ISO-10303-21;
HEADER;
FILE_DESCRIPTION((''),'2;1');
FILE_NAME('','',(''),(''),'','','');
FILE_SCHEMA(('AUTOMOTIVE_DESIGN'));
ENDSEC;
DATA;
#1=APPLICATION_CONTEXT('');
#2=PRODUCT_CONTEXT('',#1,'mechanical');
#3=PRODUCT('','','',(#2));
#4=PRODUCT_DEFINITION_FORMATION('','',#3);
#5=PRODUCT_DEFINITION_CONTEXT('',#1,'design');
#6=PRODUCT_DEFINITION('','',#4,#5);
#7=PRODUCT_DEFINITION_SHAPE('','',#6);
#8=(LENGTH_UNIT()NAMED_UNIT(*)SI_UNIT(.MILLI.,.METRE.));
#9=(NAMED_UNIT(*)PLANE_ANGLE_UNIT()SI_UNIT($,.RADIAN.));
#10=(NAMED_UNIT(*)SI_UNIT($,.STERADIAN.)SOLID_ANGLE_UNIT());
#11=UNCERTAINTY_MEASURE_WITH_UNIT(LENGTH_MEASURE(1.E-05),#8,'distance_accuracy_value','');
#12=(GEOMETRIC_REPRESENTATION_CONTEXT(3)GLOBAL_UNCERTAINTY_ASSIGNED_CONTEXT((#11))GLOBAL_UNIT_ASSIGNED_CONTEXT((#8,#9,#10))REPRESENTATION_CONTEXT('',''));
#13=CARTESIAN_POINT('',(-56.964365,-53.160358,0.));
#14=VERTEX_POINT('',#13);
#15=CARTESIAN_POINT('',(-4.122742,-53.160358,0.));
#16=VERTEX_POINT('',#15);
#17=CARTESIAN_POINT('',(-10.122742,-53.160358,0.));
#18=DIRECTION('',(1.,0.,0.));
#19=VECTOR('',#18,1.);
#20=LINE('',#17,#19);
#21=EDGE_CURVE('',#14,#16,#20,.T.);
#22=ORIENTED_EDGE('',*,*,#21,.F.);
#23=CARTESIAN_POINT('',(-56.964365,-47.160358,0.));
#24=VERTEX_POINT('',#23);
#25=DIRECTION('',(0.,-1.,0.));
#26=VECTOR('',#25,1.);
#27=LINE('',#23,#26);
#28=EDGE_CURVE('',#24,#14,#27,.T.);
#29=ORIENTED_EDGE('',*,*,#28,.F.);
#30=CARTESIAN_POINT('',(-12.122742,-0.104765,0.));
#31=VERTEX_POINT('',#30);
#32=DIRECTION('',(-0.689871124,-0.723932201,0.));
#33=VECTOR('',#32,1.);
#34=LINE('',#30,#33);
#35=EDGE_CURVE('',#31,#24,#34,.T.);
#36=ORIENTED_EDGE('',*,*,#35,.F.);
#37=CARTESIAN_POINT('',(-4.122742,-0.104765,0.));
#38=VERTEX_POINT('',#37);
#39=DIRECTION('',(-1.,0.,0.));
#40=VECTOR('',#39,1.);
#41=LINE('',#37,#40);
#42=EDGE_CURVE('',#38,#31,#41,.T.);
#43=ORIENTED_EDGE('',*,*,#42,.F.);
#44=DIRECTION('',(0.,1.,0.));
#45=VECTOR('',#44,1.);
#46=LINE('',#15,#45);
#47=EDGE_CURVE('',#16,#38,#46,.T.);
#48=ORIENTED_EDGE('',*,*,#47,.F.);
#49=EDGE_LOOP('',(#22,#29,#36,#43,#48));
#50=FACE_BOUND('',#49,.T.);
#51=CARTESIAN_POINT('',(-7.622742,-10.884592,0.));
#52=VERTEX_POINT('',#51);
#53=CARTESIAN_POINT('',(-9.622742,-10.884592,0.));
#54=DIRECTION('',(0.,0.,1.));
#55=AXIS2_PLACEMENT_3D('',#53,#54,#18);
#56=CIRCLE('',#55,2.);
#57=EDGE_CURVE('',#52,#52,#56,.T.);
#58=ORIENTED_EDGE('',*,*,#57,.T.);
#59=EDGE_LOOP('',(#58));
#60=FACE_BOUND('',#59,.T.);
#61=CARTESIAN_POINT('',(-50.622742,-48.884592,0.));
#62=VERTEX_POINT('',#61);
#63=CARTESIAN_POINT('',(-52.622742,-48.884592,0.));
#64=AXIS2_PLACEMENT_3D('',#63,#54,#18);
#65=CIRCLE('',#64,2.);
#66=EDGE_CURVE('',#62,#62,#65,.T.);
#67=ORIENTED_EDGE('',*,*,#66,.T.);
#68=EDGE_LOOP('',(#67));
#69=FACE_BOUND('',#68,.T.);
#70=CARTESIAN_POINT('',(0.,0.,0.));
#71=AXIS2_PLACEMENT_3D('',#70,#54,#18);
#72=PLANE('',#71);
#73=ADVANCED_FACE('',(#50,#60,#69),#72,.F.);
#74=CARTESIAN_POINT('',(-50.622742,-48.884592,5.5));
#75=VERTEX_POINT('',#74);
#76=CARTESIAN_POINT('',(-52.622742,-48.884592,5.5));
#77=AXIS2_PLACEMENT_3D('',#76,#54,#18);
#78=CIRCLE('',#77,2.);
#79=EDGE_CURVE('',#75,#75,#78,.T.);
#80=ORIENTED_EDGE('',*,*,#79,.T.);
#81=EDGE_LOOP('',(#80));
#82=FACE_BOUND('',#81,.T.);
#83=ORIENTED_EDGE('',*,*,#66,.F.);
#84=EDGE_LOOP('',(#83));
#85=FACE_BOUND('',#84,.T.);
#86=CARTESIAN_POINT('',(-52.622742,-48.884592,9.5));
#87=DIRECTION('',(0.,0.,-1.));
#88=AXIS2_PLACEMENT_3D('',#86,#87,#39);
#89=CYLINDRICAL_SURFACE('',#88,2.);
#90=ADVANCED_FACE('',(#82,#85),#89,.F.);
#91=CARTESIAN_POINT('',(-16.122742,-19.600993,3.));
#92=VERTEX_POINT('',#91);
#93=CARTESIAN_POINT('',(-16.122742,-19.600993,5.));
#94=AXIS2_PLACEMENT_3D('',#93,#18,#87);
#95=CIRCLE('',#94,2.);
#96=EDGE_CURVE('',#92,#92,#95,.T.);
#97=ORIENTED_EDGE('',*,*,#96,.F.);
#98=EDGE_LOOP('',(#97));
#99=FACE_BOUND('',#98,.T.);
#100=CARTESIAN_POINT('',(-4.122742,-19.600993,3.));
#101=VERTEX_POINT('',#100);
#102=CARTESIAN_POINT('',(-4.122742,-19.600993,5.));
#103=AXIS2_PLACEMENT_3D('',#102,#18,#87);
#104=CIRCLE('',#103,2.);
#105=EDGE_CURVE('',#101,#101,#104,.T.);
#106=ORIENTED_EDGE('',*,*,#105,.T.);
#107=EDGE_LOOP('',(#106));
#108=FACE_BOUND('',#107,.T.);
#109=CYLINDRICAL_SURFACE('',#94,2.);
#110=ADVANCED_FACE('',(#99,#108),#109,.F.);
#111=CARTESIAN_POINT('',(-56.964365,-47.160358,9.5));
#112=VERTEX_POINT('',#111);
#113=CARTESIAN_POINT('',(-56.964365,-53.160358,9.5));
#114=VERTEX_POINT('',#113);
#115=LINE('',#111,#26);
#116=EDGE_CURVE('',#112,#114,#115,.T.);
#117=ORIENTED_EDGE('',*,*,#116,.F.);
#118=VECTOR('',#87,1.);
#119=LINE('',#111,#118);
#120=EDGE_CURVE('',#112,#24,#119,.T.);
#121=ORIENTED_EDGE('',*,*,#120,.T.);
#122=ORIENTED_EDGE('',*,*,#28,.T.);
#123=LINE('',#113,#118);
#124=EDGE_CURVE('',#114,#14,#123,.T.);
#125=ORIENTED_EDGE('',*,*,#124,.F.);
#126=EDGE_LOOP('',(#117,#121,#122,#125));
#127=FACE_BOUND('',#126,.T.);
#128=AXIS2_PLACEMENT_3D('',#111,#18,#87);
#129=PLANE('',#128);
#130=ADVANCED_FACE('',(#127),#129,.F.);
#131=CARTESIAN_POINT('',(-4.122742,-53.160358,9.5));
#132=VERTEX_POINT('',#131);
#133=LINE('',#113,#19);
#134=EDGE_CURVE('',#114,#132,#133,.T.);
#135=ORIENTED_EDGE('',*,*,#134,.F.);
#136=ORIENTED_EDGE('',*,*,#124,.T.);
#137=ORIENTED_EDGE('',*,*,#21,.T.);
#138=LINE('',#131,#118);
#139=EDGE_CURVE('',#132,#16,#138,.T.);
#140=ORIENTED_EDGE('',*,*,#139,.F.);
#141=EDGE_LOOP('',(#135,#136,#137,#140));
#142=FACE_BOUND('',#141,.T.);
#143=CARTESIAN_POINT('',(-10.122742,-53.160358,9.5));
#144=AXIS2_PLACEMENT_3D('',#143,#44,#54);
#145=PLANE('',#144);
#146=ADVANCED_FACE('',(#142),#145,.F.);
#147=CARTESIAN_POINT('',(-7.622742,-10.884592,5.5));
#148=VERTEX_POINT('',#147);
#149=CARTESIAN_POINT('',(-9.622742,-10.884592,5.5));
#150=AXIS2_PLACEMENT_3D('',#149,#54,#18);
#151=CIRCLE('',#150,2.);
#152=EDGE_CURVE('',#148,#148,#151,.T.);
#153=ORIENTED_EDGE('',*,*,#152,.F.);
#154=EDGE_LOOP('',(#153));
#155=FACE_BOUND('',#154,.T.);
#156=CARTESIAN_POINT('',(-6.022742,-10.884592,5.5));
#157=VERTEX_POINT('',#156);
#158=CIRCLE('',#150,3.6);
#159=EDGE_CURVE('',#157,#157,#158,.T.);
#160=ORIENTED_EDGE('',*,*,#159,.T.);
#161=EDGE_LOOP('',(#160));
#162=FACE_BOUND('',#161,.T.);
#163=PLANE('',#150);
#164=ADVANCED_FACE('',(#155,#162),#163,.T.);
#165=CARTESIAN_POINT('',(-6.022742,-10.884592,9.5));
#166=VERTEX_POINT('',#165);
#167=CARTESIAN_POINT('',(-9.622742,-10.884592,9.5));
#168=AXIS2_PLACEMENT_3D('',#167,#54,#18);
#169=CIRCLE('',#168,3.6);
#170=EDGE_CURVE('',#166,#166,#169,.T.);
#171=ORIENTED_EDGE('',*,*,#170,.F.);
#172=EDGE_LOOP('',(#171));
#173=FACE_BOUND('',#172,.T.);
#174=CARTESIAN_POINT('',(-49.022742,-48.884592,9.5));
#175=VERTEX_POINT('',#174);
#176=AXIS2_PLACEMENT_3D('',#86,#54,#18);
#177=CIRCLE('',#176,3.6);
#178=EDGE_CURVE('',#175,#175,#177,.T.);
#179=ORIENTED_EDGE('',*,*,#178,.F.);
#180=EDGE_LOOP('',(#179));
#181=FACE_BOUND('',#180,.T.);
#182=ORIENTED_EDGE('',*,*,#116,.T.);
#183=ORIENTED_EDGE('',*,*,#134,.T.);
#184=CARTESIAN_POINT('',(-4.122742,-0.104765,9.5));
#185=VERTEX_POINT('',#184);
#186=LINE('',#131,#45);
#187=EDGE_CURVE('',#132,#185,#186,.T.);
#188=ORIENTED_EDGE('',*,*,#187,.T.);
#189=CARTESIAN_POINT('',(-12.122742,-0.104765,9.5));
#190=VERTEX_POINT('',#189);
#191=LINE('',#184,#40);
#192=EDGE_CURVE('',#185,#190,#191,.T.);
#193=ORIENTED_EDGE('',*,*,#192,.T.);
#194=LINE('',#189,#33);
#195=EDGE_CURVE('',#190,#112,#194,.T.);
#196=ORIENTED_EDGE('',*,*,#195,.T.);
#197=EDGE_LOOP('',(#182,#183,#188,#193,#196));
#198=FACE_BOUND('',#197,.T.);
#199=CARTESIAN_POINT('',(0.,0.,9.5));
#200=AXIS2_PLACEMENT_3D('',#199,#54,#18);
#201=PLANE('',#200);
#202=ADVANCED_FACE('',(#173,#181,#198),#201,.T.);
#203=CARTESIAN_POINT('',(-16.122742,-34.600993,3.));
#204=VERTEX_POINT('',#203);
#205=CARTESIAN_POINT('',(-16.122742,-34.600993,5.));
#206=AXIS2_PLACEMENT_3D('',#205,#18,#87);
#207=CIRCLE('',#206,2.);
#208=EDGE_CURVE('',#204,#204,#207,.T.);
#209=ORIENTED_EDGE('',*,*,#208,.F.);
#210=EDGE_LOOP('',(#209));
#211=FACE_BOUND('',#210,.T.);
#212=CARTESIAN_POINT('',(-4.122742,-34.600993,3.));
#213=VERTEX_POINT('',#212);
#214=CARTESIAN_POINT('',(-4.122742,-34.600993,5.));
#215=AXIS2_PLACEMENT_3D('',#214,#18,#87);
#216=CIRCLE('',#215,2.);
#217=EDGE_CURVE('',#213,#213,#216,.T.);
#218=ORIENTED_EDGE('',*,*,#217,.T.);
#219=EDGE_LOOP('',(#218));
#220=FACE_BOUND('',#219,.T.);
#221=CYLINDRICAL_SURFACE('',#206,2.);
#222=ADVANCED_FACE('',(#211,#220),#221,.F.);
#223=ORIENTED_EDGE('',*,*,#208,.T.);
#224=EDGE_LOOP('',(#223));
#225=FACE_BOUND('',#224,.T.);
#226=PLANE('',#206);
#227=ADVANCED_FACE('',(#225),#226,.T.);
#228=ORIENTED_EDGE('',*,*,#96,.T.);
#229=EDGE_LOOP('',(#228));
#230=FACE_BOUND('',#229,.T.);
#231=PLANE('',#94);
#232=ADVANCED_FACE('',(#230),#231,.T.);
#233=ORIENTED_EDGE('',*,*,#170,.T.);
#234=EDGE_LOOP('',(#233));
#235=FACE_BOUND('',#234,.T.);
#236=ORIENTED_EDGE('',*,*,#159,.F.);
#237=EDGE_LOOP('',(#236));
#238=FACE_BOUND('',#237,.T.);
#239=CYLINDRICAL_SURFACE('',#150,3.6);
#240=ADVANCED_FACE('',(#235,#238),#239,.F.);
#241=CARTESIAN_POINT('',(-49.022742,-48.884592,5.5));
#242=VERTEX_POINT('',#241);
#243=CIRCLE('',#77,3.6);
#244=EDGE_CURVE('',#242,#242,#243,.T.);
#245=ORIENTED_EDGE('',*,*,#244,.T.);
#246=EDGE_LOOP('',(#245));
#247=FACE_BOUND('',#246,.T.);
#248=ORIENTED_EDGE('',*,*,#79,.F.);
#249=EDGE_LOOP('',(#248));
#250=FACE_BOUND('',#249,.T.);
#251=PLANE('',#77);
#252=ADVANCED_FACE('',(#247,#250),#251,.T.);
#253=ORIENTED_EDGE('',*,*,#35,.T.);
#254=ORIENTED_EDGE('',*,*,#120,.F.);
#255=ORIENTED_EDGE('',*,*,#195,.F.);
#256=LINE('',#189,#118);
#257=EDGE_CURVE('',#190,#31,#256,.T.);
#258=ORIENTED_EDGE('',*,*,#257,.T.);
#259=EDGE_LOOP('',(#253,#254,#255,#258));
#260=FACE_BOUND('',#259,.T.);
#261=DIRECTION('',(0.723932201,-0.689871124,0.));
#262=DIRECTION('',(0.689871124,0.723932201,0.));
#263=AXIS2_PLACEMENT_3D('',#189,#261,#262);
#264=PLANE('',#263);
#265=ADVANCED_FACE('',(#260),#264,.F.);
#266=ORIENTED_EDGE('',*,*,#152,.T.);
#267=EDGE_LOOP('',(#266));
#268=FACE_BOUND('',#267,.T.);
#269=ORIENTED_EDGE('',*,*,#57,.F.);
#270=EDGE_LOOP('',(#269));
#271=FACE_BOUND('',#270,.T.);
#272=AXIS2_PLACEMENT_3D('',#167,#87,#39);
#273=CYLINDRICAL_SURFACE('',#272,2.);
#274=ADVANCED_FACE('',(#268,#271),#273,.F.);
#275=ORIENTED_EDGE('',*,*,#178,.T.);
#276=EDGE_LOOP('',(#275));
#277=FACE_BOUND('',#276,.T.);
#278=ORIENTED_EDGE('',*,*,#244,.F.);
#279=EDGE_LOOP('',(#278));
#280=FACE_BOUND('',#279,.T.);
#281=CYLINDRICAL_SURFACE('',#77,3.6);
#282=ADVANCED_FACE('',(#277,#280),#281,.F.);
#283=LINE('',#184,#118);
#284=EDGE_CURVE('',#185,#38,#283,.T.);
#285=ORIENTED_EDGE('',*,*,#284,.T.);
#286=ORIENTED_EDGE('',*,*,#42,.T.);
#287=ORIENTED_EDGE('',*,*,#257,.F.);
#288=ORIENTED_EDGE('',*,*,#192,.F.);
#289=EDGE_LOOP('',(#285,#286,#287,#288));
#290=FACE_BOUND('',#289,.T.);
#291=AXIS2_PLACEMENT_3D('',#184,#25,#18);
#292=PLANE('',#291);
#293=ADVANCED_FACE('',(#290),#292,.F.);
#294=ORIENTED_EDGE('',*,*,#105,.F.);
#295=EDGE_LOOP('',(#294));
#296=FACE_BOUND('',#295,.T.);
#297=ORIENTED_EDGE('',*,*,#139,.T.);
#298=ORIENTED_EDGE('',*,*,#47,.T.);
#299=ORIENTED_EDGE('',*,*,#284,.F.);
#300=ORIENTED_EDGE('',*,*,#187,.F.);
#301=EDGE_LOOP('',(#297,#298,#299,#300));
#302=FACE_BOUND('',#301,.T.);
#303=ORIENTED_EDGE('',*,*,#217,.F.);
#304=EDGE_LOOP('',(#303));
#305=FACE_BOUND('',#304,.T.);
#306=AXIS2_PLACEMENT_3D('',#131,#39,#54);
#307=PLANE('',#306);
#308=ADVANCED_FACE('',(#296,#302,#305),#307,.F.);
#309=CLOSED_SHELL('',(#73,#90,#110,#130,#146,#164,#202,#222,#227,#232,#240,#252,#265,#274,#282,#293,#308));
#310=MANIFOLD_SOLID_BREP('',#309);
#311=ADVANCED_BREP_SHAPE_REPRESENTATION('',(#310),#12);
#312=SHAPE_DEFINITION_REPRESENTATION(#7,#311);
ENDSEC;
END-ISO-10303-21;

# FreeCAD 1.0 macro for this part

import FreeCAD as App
import Part
import Sketcher
from FreeCAD import Vector
Q = App.Units.Quantity


def add_polygon(sketch, points):
    """Adds a closed chain of lines whose ends are joined by coincident constraints."""
    first, n = sketch.GeometryCount, len(points)
    for a, b in zip(points, points[1:] + points[:1]):
        sketch.addGeometry(Part.LineSegment(App.Vector(*a, 0), App.Vector(*b, 0)), False)
    for i in range(n):
        sketch.addConstraint(Sketcher.Constraint("Coincident", first + i, 2, first + (i + 1) % n, 1))

doc = App.newDocument("Part")
body = doc.addObject("PartDesign::Body", "Body")

# Sketch on XY plane
sketch1 = body.newObject("Sketcher::SketchObject", "Sketch")
sketch1.AttachmentSupport = (doc.getObject("XY_Plane"), [""])
sketch1.MapMode = "FlatFace"
add_polygon(sketch1, [(-4.122742, -0.104765), (-12.122742, -0.104765), (-56.964365, -47.160358), (-56.964365, -53.160358), (-4.122742, -53.160358)])  # lines 0-4
sketch1.addGeometry(Part.Circle(Vector(-52.622742, -48.884592, 0), Vector(0, 0, 1), 2), False)  # 5
sketch1.addGeometry(Part.Circle(Vector(-9.622742, -10.884592, 0), Vector(0, 0, 1), 2), False)  # 6
sketch1.addConstraint([
    Sketcher.Constraint("Horizontal", 0),
    Sketcher.Constraint("Vertical", 2),
    Sketcher.Constraint("Horizontal", 3),
    Sketcher.Constraint("Vertical", 4),
    Sketcher.Constraint("Equal", 5, 6),
    Sketcher.Constraint("Diameter", 5, Q("4 mm")),
    Sketcher.Constraint("DistanceX", 0, 2, 0, 1, Q("8 mm")),
    Sketcher.Constraint("DistanceY", 2, 2, 2, 1, Q("6 mm")),
    Sketcher.Constraint("Distance", 1, Q("65 mm")),
    Sketcher.Constraint("DistanceX", 5, 3, 6, 3, Q("43 mm")),
    Sketcher.Constraint("DistanceY", 5, 3, 6, 3, Q("38 mm")),
    Sketcher.Constraint("DistanceX", 0, 2, 6, 3, Q("2.5 mm")),
    Sketcher.Constraint("DistanceX", 3, 1, 3, 2, Q("52.841623 mm")),
    Sketcher.Constraint("DistanceX", 5, 3, -1, 1, Q("52.622742 mm")),
    Sketcher.Constraint("DistanceY", 5, 3, -1, 1, Q("48.884592 mm")),
    Sketcher.Constraint("DistanceY", 0, 2, -1, 1, Q("0.104765 mm")),
])
pad1 = body.newObject("PartDesign::Pad", "Pad")
pad1.Profile = sketch1
pad1.Length = 9.5

# Sketch on YZ plane
sketch2 = body.newObject("Sketcher::SketchObject", "Sketch001")
sketch2.AttachmentSupport = (doc.getObject("YZ_Plane"), [""])
sketch2.MapMode = "FlatFace"
sketch2.AttachmentOffset = App.Placement(Vector(0, 0, -4.122742), App.Rotation())
sketch2.addGeometry([
    Part.Circle(Vector(-19.600993, 5, 0), Vector(0, 0, 1), 2),
    Part.Circle(Vector(-34.600993, 5, 0), Vector(0, 0, 1), 2),
], False)
sketch2.addConstraint([
    Sketcher.Constraint("Equal", 0, 1),
    Sketcher.Constraint("Horizontal", 0, 3, 1, 3),
    Sketcher.Constraint("Diameter", 0, Q("4 mm")),
    Sketcher.Constraint("DistanceY", -1, 1, 0, 3, Q("5 mm")),
    Sketcher.Constraint("DistanceX", 1, 3, 0, 3, Q("15 mm")),
    Sketcher.Constraint("DistanceX", 0, 3, -1, 1, Q("19.600993 mm")),
])
pocket1 = body.newObject("PartDesign::Pocket", "Pocket")
pocket1.Profile = sketch2
pocket1.Length = 12

# Sketch on XY plane
sketch3 = body.newObject("Sketcher::SketchObject", "Sketch002")
sketch3.AttachmentSupport = (doc.getObject("XY_Plane"), [""])
sketch3.MapMode = "FlatFace"
sketch3.AttachmentOffset = App.Placement(Vector(0, 0, 9.5), App.Rotation())
sketch3.addGeometry(Part.Circle(Vector(-52.622742, -48.884592, 0), Vector(0, 0, 1), 3.6), False)
sketch3.addConstraint([
    Sketcher.Constraint("Diameter", 0, Q("7.2 mm")),
    Sketcher.Constraint("DistanceX", 0, 3, -1, 1, Q("52.622742 mm")),
    Sketcher.Constraint("DistanceY", 0, 3, -1, 1, Q("48.884592 mm")),
])
pocket2 = body.newObject("PartDesign::Pocket", "Pocket001")
pocket2.Profile = sketch3
pocket2.Length = 4

# Sketch on XY plane
sketch4 = body.newObject("Sketcher::SketchObject", "Sketch003")
sketch4.AttachmentSupport = (doc.getObject("XY_Plane"), [""])
sketch4.MapMode = "FlatFace"
sketch4.AttachmentOffset = App.Placement(Vector(0, 0, 9.5), App.Rotation())
sketch4.addGeometry(Part.Circle(Vector(-9.622742, -10.884592, 0), Vector(0, 0, 1), 3.6), False)
sketch4.addConstraint([
    Sketcher.Constraint("Diameter", 0, Q("7.2 mm")),
    Sketcher.Constraint("DistanceX", 0, 3, -1, 1, Q("9.622742 mm")),
    Sketcher.Constraint("DistanceY", 0, 3, -1, 1, Q("10.884592 mm")),
])
pocket3 = body.newObject("PartDesign::Pocket", "Pocket002")
pocket3.Profile = sketch4
pocket3.Length = 4

doc.recompute()
